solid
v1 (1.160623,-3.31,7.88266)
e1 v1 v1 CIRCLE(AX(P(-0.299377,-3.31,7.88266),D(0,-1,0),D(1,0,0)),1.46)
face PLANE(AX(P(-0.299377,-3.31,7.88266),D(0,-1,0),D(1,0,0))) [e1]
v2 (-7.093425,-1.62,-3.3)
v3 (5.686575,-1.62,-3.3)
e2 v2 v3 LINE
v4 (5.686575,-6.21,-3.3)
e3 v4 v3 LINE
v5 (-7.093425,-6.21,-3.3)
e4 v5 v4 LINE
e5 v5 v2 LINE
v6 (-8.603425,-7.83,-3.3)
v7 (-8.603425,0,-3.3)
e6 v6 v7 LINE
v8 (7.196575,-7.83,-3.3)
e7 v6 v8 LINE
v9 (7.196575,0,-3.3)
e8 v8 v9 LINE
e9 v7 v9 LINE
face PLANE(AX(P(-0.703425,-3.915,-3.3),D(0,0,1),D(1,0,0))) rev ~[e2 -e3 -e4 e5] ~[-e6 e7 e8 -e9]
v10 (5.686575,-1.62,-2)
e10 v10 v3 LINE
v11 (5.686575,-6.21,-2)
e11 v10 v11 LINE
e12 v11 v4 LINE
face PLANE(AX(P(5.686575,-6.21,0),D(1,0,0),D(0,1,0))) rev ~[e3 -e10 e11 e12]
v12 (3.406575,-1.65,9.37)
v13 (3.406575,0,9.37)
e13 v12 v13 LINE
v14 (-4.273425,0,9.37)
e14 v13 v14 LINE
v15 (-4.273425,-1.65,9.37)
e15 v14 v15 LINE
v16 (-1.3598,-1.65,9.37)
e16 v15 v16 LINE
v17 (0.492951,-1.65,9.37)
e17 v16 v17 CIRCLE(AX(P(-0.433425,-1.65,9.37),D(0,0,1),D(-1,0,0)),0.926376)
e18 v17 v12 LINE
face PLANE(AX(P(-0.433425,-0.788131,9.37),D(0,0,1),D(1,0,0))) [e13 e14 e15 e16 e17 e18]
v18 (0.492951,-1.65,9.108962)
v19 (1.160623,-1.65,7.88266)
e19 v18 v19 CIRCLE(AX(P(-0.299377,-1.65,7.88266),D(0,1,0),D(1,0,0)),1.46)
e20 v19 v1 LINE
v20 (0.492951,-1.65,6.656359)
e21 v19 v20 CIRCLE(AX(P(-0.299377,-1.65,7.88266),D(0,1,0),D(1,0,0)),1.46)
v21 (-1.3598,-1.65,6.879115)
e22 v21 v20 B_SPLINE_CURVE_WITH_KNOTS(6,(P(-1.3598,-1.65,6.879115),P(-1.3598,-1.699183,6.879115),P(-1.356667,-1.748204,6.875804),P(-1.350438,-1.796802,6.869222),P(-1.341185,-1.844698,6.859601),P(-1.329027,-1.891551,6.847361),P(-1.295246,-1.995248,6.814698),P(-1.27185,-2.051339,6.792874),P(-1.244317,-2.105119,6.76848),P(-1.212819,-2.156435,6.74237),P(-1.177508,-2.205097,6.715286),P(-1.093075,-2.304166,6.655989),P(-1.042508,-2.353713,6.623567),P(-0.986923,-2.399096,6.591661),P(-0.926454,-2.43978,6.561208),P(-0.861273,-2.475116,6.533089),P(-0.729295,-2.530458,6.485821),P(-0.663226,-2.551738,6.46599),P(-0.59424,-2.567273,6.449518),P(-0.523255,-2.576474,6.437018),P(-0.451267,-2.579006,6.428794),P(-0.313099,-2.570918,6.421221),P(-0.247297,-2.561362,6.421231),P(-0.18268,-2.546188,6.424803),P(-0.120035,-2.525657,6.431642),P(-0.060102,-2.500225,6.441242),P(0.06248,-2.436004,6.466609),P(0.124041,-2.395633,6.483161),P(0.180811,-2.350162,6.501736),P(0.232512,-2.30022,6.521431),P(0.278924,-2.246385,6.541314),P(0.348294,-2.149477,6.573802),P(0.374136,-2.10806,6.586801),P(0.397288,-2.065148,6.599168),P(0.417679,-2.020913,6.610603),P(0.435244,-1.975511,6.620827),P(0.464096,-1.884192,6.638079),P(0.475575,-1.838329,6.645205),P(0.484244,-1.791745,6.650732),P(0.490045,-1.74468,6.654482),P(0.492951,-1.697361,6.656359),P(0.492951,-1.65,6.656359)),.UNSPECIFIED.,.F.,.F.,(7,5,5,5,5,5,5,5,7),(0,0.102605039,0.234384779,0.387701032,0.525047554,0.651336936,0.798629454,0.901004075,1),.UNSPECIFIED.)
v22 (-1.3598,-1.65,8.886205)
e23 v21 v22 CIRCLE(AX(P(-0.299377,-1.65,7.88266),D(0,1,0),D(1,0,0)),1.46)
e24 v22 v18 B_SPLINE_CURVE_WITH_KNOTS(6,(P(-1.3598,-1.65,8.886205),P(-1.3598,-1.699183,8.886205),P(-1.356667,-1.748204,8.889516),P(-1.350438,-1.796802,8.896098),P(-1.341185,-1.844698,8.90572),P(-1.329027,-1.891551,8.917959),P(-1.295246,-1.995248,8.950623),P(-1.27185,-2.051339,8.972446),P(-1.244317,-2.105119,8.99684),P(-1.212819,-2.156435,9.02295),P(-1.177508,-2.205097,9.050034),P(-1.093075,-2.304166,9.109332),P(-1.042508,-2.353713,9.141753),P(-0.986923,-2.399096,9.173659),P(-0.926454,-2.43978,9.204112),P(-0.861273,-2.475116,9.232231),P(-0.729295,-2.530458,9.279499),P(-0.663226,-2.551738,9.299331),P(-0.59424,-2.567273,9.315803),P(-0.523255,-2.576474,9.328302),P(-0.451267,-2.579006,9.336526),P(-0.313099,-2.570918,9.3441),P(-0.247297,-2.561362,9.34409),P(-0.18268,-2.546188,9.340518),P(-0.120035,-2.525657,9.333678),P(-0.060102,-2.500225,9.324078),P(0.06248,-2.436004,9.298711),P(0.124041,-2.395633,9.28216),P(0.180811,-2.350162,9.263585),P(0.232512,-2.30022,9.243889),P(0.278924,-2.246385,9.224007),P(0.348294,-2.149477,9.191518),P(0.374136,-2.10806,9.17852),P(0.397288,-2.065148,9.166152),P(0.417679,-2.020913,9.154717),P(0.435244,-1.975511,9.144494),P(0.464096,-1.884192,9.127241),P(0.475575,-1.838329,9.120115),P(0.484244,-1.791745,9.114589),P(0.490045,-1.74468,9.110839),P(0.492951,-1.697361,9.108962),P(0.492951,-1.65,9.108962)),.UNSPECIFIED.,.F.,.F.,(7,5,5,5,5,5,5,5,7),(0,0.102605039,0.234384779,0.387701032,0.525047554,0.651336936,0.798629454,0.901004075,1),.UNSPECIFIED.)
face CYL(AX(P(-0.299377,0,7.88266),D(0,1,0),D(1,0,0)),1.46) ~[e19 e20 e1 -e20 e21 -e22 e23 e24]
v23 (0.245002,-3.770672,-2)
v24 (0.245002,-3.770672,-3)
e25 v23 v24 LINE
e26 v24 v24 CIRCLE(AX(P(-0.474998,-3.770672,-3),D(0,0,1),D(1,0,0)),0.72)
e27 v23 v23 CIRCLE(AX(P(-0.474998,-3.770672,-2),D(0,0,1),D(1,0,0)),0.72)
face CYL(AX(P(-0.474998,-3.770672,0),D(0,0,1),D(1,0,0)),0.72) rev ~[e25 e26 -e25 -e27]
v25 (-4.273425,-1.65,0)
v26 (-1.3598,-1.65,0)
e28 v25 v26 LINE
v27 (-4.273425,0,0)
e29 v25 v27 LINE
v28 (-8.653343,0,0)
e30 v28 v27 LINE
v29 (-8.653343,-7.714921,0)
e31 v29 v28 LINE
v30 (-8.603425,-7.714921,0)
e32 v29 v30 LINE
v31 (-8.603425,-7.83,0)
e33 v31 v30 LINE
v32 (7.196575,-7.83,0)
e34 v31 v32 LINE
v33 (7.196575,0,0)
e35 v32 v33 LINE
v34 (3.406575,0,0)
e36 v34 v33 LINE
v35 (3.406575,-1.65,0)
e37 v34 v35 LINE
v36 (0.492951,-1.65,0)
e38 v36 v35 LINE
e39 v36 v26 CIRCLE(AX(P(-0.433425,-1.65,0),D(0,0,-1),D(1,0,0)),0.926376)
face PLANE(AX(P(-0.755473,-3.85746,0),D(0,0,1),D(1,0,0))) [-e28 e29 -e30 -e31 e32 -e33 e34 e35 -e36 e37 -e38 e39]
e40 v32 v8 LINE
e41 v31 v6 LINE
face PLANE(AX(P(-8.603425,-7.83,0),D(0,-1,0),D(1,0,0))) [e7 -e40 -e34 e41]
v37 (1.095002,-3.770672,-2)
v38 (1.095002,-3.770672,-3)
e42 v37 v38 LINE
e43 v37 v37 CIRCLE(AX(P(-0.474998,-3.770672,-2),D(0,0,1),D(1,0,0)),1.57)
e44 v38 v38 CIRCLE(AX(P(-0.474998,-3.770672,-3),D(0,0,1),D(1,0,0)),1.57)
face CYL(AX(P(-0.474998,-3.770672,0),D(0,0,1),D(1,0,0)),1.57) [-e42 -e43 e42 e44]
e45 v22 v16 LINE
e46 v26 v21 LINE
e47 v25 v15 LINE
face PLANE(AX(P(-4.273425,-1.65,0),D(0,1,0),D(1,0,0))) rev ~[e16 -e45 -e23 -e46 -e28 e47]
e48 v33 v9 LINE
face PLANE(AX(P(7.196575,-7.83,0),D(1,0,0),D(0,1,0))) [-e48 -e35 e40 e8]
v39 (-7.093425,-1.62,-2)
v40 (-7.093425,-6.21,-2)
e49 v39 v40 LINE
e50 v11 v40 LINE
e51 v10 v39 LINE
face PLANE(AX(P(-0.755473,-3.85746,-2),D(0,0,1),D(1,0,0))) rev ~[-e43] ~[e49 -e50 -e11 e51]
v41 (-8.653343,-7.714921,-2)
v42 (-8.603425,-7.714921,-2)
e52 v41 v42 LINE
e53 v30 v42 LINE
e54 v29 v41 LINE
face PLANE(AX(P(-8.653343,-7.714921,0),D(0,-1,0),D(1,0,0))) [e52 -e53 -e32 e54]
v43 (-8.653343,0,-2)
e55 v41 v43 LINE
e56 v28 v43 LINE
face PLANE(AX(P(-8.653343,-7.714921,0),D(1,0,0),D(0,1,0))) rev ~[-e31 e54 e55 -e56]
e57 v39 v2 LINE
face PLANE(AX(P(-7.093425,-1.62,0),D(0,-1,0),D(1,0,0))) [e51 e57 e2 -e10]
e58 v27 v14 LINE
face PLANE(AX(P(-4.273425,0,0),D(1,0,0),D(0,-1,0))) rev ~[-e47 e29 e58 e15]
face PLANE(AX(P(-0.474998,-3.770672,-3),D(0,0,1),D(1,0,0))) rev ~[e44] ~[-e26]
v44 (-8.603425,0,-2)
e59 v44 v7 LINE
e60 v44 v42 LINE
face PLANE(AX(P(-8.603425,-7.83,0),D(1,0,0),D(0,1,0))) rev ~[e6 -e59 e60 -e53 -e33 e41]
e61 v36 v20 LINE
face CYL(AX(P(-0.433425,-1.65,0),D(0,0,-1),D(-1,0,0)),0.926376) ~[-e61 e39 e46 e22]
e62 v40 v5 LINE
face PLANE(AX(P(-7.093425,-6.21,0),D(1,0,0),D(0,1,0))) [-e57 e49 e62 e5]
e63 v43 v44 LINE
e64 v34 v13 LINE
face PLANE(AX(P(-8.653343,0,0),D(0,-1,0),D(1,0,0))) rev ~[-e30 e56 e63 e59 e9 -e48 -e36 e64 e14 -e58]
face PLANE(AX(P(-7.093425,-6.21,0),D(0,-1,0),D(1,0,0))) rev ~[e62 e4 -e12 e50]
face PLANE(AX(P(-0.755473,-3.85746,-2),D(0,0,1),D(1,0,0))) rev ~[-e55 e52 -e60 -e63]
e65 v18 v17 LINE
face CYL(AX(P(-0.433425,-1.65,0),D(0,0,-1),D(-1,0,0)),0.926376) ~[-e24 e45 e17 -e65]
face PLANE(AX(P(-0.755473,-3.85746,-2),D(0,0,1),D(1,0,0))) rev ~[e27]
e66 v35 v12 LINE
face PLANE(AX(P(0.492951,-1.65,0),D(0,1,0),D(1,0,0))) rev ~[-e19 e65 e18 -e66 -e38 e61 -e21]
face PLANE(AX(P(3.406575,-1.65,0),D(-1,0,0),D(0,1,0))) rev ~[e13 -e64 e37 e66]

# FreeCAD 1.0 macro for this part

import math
import FreeCAD as App
import Part
import Sketcher

V = App.Vector
Q = App.Units.Quantity


def add_polygon(sketch, points):
    """Adds a closed chain of lines whose ends are joined by coincident constraints."""
    first, n = sketch.GeometryCount, len(points)
    for a, b in zip(points, points[1:] + points[:1]):
        sketch.addGeometry(Part.LineSegment(App.Vector(*a, 0), App.Vector(*b, 0)), False)
    for i in range(n):
        sketch.addConstraint(Sketcher.Constraint("Coincident", first + i, 2, first + (i + 1) % n, 1))

doc = App.newDocument("Part")
params = doc.addObject("Spreadsheet::Sheet", "Params")
for row, (alias, value) in enumerate([
    ("sketch1_width", "15.8 mm"),
    ("sketch1_height", "7.83 mm"),
    ("pad1_length", "3.3 mm"),
    ("sketch2_width", "7.68 mm"),
    ("sketch2_height", "1.65 mm"),
    ("pad2_length", "9.37 mm"),
    ("sketch3_diameter", "2.92 mm"),
    ("pad3_length", "3.31 mm"),
    ("sketch4_width", "12.78 mm"),
    ("sketch4_height", "4.59 mm"),
    ("pocket1_length", "25 mm"),
    ("pad4_length", "2 mm"),
    ("sketch6_diameter", "3.14 mm"),
    ("sketch6_diameter2", "1.44 mm"),
    ("pad5_length", "3 mm"),
], start=1):
    params.set(f"A{row}", alias)
    params.set(f"B{row}", "=" + value)
    params.setAlias(f"B{row}", alias)

body = doc.addObject("PartDesign::Body", "Body")

# Sketch on XY plane
sketch1 = doc.addObject("Sketcher::SketchObject", "Sketch")
body.addObject(sketch1)
sketch1.AttachmentSupport = (doc.XY_Plane, [""])
sketch1.MapMode = "FlatFace"
add_polygon(sketch1, [(-9, 0), (-9, -8), (7, -8), (7, 0)])  # lines 0-3
sketch1.addConstraint(Sketcher.Constraint("Vertical", 0))
sketch1.addConstraint(Sketcher.Constraint("Horizontal", 1))
sketch1.addConstraint(Sketcher.Constraint("Vertical", 2))
sketch1.addConstraint(Sketcher.Constraint("Horizontal", 3))
sketch1.addConstraint(Sketcher.Constraint("PointOnObject", 2, 2, -1))
sketch1.addConstraint(Sketcher.Constraint("DistanceX", 1, 1, 1, 2, Q("15.8 mm")))
sketch1.addConstraint(Sketcher.Constraint("DistanceY", 0, 2, 0, 1, Q("7.83 mm")))
sketch1.addConstraint(Sketcher.Constraint("DistanceX", 0, 2, -1, 1, Q("8.603425 mm")))
sketch1.setExpression("Constraints[9]", "Params.sketch1_width")
sketch1.setExpression("Constraints[10]", "Params.sketch1_height")
pad1 = doc.addObject("PartDesign::Pad", "Pad")
body.addObject(pad1)
pad1.Profile = sketch1
pad1.setExpression("Length", "Params.pad1_length")
pad1.Reversed = True

# Sketch on XY plane
sketch2 = doc.addObject("Sketcher::SketchObject", "Sketch001")
body.addObject(sketch2)
sketch2.AttachmentSupport = (doc.XY_Plane, [""])
sketch2.MapMode = "FlatFace"
sketch2.addGeometry(Part.LineSegment(V(3.4, 0, 0), V(-4.3, 0, 0)), False)
sketch2.addGeometry(Part.LineSegment(V(-4.3, 0, 0), V(-4.3, -1.6, 0)), False)
sketch2.addGeometry(Part.LineSegment(V(-4.3, -1.6, 0), V(-1.4, -1.6, 0)), False)
sketch2.addGeometry(Part.ArcOfCircle(Part.Circle(V(-0.4, -1.6, 0), V(0, 0, 1), 0.9), math.radians(180), math.radians(360)), False)
sketch2.addGeometry(Part.LineSegment(V(0.5, -1.6, 0), V(3.4, -1.6, 0)), False)
sketch2.addGeometry(Part.LineSegment(V(3.4, -1.6, 0), V(3.4, 0, 0)), False)
sketch2.addConstraint(Sketcher.Constraint("Coincident", 0, 2, 1, 1))
sketch2.addConstraint(Sketcher.Constraint("Coincident", 1, 2, 2, 1))
sketch2.addConstraint(Sketcher.Constraint("Coincident", 2, 2, 3, 1))
sketch2.addConstraint(Sketcher.Constraint("Coincident", 3, 2, 4, 1))
sketch2.addConstraint(Sketcher.Constraint("Coincident", 4, 2, 5, 1))
sketch2.addConstraint(Sketcher.Constraint("Coincident", 5, 2, 0, 1))
sketch2.addConstraint(Sketcher.Constraint("Horizontal", 0))
sketch2.addConstraint(Sketcher.Constraint("Vertical", 1))
sketch2.addConstraint(Sketcher.Constraint("Horizontal", 2))
sketch2.addConstraint(Sketcher.Constraint("Horizontal", 4))
sketch2.addConstraint(Sketcher.Constraint("Vertical", 5))
sketch2.addConstraint(Sketcher.Constraint("PointOnObject", 0, 2, -1))
sketch2.addConstraint(Sketcher.Constraint("Horizontal", 3, 3, 1, 2))
sketch2.addConstraint(Sketcher.Constraint("Horizontal", 2, 2, 3, 2))
sketch2.addConstraint(Sketcher.Constraint("Equal", 2, 4))
sketch2.addConstraint(Sketcher.Constraint("DistanceX", 0, 2, 0, 1, Q("7.68 mm")))
sketch2.addConstraint(Sketcher.Constraint("DistanceY", 1, 2, 1, 1, Q("1.65 mm")))
sketch2.addConstraint(Sketcher.Constraint("Radius", 3, Q("0.926376 mm")))
sketch2.addConstraint(Sketcher.Constraint("DistanceX", 2, 2, -1, 1, Q("1.3598 mm")))
sketch2.setExpression("Constraints[15]", "Params.sketch2_width")
sketch2.setExpression("Constraints[16]", "Params.sketch2_height")
pad2 = doc.addObject("PartDesign::Pad", "Pad001")
body.addObject(pad2)
pad2.Profile = sketch2
pad2.setExpression("Length", "Params.pad2_length")

# Sketch on XZ plane
sketch3 = doc.addObject("Sketcher::SketchObject", "Sketch002")
body.addObject(sketch3)
sketch3.AttachmentSupport = (doc.XZ_Plane, [""])
sketch3.MapMode = "FlatFace"
sketch3.addGeometry(Part.Circle(V(-0.3, 7.9, 0), V(0, 0, 1), 1.5), False)
sketch3.addConstraint(Sketcher.Constraint("Diameter", 0, Q("2.92 mm")))
sketch3.addConstraint(Sketcher.Constraint("DistanceY", -1, 1, 0, 3, Q("7.88266 mm")))
sketch3.addConstraint(Sketcher.Constraint("DistanceX", 0, 3, -1, 1, Q("0.299377 mm")))
sketch3.setExpression("Constraints[0]", "Params.sketch3_diameter")
pad3 = doc.addObject("PartDesign::Pad", "Pad002")
body.addObject(pad3)
pad3.Profile = sketch3
pad3.setExpression("Length", "Params.pad3_length")

# Sketch on XY plane
sketch4 = doc.addObject("Sketcher::SketchObject", "Sketch003")
body.addObject(sketch4)
sketch4.AttachmentSupport = (doc.XY_Plane, [""])
sketch4.MapMode = "FlatFace"
add_polygon(sketch4, [(-7.1, -1.6), (-7.1, -6.2), (5.7, -6.2), (5.7, -1.6)])  # lines 0-3
sketch4.addConstraint(Sketcher.Constraint("Vertical", 0))
sketch4.addConstraint(Sketcher.Constraint("Horizontal", 1))
sketch4.addConstraint(Sketcher.Constraint("Vertical", 2))
sketch4.addConstraint(Sketcher.Constraint("Horizontal", 3))
sketch4.addConstraint(Sketcher.Constraint("DistanceX", 1, 1, 1, 2, Q("12.78 mm")))
sketch4.addConstraint(Sketcher.Constraint("DistanceY", 0, 2, 0, 1, Q("4.59 mm")))
sketch4.addConstraint(Sketcher.Constraint("DistanceY", 0, 2, -1, 1, Q("6.21 mm")))
sketch4.addConstraint(Sketcher.Constraint("DistanceX", 0, 2, -1, 1, Q("7.093425 mm")))
sketch4.setExpression("Constraints[8]", "Params.sketch4_width")
sketch4.setExpression("Constraints[9]", "Params.sketch4_height")
pocket1 = doc.addObject("PartDesign::Pocket", "Pocket")
body.addObject(pocket1)
pocket1.Profile = sketch4
pocket1.setExpression("Length", "Params.pocket1_length")

# Sketch on XY plane
sketch5 = doc.addObject("Sketcher::SketchObject", "Sketch004")
body.addObject(sketch5)
sketch5.AttachmentSupport = (doc.XY_Plane, [""])
sketch5.MapMode = "FlatFace"
add_polygon(sketch5, [(-9, 0), (-9, -8), (7, -8), (7, 0)])  # lines 0-3
sketch5.addConstraint(Sketcher.Constraint("Vertical", 0))
sketch5.addConstraint(Sketcher.Constraint("Horizontal", 1))
sketch5.addConstraint(Sketcher.Constraint("Vertical", 2))
sketch5.addConstraint(Sketcher.Constraint("Horizontal", 3))
sketch5.addConstraint(Sketcher.Constraint("PointOnObject", 2, 2, -1))
sketch5.addConstraint(Sketcher.Constraint("DistanceX", 1, 1, 1, 2, Q("15.795739 mm")))
sketch5.addConstraint(Sketcher.Constraint("DistanceY", 0, 2, 0, 1, Q("7.714921 mm")))
sketch5.addConstraint(Sketcher.Constraint("DistanceX", 0, 2, -1, 1, Q("8.653343 mm")))
pad4 = doc.addObject("PartDesign::Pad", "Pad003")
body.addObject(pad4)
pad4.Profile = sketch5
pad4.setExpression("Length", "Params.pad4_length")
pad4.Reversed = True

# Sketch on XY plane
sketch6 = doc.addObject("Sketcher::SketchObject", "Sketch005")
body.addObject(sketch6)
sketch6.AttachmentSupport = (doc.XY_Plane, [""])
sketch6.MapMode = "FlatFace"
sketch6.addGeometry(Part.Circle(V(-0.5, -3.8, 0), V(0, 0, 1), 1.6), False)
sketch6.addGeometry(Part.Circle(V(-0.5, -3.8, 0), V(0, 0, 1), 0.7), False)
sketch6.addConstraint(Sketcher.Constraint("Coincident", 1, 3, 0, 3))
sketch6.addConstraint(Sketcher.Constraint("Diameter", 0, Q("3.14 mm")))
sketch6.addConstraint(Sketcher.Constraint("Diameter", 1, Q("1.44 mm")))
sketch6.addConstraint(Sketcher.Constraint("DistanceX", 0, 3, -1, 1, Q("0.474998 mm")))
sketch6.addConstraint(Sketcher.Constraint("DistanceY", 0, 3, -1, 1, Q("3.770672 mm")))
sketch6.setExpression("Constraints[1]", "Params.sketch6_diameter")
sketch6.setExpression("Constraints[2]", "Params.sketch6_diameter2")
pad5 = doc.addObject("PartDesign::Pad", "Pad004")
body.addObject(pad5)
pad5.Profile = sketch6
pad5.setExpression("Length", "Params.pad5_length")
pad5.Reversed = True

doc.recompute()
